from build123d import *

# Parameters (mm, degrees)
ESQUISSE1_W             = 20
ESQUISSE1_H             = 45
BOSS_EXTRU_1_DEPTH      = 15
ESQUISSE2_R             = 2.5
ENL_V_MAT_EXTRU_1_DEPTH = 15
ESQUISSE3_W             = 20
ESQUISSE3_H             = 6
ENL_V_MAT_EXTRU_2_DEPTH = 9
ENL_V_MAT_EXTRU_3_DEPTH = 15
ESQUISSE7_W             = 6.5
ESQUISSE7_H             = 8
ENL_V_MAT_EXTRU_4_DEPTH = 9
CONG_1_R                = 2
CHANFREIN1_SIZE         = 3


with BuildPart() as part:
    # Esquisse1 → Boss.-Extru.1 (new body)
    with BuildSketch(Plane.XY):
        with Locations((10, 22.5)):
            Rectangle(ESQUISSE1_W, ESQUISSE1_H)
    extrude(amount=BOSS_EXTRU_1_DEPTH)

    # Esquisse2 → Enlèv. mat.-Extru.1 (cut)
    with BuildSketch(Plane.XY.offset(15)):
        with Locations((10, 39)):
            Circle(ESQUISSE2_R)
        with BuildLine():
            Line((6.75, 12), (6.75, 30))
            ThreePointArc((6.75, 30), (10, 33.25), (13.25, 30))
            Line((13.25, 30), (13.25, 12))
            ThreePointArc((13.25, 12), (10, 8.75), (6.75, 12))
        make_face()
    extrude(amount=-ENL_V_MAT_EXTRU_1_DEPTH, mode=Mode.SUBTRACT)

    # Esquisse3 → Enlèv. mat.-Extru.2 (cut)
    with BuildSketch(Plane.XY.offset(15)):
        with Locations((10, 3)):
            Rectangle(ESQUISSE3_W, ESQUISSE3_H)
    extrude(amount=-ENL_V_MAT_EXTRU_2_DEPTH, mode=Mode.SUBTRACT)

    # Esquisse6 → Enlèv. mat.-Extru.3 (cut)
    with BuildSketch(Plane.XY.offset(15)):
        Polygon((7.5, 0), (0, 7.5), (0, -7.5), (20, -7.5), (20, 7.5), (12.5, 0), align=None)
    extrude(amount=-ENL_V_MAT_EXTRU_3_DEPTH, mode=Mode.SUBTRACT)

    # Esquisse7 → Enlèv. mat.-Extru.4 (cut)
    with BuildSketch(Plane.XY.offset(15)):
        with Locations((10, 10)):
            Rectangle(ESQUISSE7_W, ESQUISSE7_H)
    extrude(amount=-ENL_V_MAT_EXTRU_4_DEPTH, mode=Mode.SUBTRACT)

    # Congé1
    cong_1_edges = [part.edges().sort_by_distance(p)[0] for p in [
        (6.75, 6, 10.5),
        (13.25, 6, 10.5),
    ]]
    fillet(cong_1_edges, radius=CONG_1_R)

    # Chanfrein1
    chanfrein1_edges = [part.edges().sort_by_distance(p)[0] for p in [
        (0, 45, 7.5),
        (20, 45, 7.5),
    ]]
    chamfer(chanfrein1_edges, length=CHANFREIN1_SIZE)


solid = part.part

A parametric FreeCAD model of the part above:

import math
import FreeCAD as App
import Part
import Sketcher
from FreeCAD import Vector
Q = App.Units.Quantity


def edges_at(feature, points):
    """Names of the edges that pass closest to the given points."""
    edges = feature.Shape.Edges
    near = lambda p: min(range(len(edges)), key=lambda i: edges[i].distToShape(Part.Vertex(*p))[0])
    return sorted({f"Edge{near(p) + 1}" for p in points})


def add_polygon(sketch, points):
    """Adds a closed chain of lines whose ends are joined by coincident constraints."""
    first, n = sketch.GeometryCount, len(points)
    for a, b in zip(points, points[1:] + points[:1]):
        sketch.addGeometry(Part.LineSegment(App.Vector(*a, 0), App.Vector(*b, 0)), False)
    for i in range(n):
        sketch.addConstraint(Sketcher.Constraint("Coincident", first + i, 2, first + (i + 1) % n, 1))

doc = App.newDocument("Part")
body = doc.addObject("PartDesign::Body", "Body")

# Sketch on XY plane
sketch1 = body.newObject("Sketcher::SketchObject", "Sketch")
sketch1.AttachmentSupport = (doc.getObject("XY_Plane"), [""])
sketch1.MapMode = "FlatFace"
add_polygon(sketch1, [(0, 45), (0, 0), (20, 0), (20, 45)])  # lines 0-3
sketch1.addConstraint([
    Sketcher.Constraint("Vertical", 0),
    Sketcher.Constraint("Horizontal", 1),
    Sketcher.Constraint("Vertical", 2),
    Sketcher.Constraint("Horizontal", 3),
    Sketcher.Constraint("Coincident", 0, 2, -1, 1),
    Sketcher.Constraint("DistanceX", 1, 1, 1, 2, Q("20 mm")),
    Sketcher.Constraint("DistanceY", 0, 2, 0, 1, Q("45 mm")),
])
pad1 = body.newObject("PartDesign::Pad", "Pad")
pad1.Profile = sketch1
pad1.Length = 15

# Sketch on XY plane
sketch2 = body.newObject("Sketcher::SketchObject", "Sketch001")
sketch2.AttachmentSupport = (doc.getObject("XY_Plane"), [""])
sketch2.MapMode = "FlatFace"
sketch2.AttachmentOffset = App.Placement(Vector(0, 0, 15), App.Rotation())
sketch2.addGeometry([
    Part.Circle(Vector(10, 39, 0), Vector(0, 0, 1), 2.5),  # 0
    Part.LineSegment(Vector(6.8, 30, 0), Vector(6.8, 12, 0)),  # 1
    Part.ArcOfCircle(Part.Circle(Vector(10, 12, 0), Vector(0, 0, 1), 3.2), math.radians(180), math.radians(360)),  # 2
    Part.LineSegment(Vector(13.2, 12, 0), Vector(13.2, 30, 0)),  # 3
    Part.ArcOfCircle(Part.Circle(Vector(10, 30, 0), Vector(0, 0, 1), 3.2), math.radians(0), math.radians(180)),  # 4
], False)
sketch2.addConstraint([
    Sketcher.Constraint("Tangent", 1, 2, 2, 1),
    Sketcher.Constraint("Tangent", 2, 2, 3, 1),
    Sketcher.Constraint("Tangent", 3, 2, 4, 1),
    Sketcher.Constraint("Tangent", 4, 2, 1, 1),
    Sketcher.Constraint("Vertical", 1),
    Sketcher.Constraint("Vertical", 3),
    Sketcher.Constraint("Vertical", 0, 3, 2, 3),
    Sketcher.Constraint("Diameter", 0, Q("5 mm")),
    Sketcher.Constraint("DistanceY", 1, 2, 1, 1, Q("18 mm")),
    Sketcher.Constraint("Radius", 2, Q("3.25 mm")),
    Sketcher.Constraint("DistanceX", -1, 1, 0, 3, Q("10 mm")),
    Sketcher.Constraint("DistanceY", -1, 1, 0, 3, Q("39 mm")),
    Sketcher.Constraint("DistanceY", -1, 1, 2, 3, Q("12 mm")),
])
pocket1 = body.newObject("PartDesign::Pocket", "Pocket")
pocket1.Profile = sketch2
pocket1.Length = 15

# Sketch on XY plane
sketch3 = body.newObject("Sketcher::SketchObject", "Sketch002")
sketch3.AttachmentSupport = (doc.getObject("XY_Plane"), [""])
sketch3.MapMode = "FlatFace"
sketch3.AttachmentOffset = App.Placement(Vector(0, 0, 15), App.Rotation())
add_polygon(sketch3, [(0, 6), (0, 0), (20, 0), (20, 6)])  # lines 0-3
sketch3.addConstraint([
    Sketcher.Constraint("Vertical", 0),
    Sketcher.Constraint("Horizontal", 1),
    Sketcher.Constraint("Vertical", 2),
    Sketcher.Constraint("Horizontal", 3),
    Sketcher.Constraint("Coincident", 0, 2, -1, 1),
    Sketcher.Constraint("DistanceX", 1, 1, 1, 2, Q("20 mm")),
    Sketcher.Constraint("DistanceY", 0, 2, 0, 1, Q("6 mm")),
])
pocket2 = body.newObject("PartDesign::Pocket", "Pocket001")
pocket2.Profile = sketch3
pocket2.Length = 9

# Sketch on XY plane
sketch4 = body.newObject("Sketcher::SketchObject", "Sketch003")
sketch4.AttachmentSupport = (doc.getObject("XY_Plane"), [""])
sketch4.MapMode = "FlatFace"
sketch4.AttachmentOffset = App.Placement(Vector(0, 0, 15), App.Rotation())
add_polygon(sketch4, [(8, 0), (0, 8), (0, -8), (20, -8), (20, 8), (12, 0)])  # lines 0-5
sketch4.addConstraint([
    Sketcher.Constraint("Vertical", 1),
    Sketcher.Constraint("Horizontal", 2),
    Sketcher.Constraint("Vertical", 3),
    Sketcher.Constraint("Horizontal", 5),
    Sketcher.Constraint("Symmetric", 0, 2, 1, 2, -1, 1),
    Sketcher.Constraint("PointOnObject", 4, 2, -1),
    Sketcher.Constraint("Perpendicular", 0, 4),
    Sketcher.Constraint("Horizontal", 0, 2, 3, 2),
    Sketcher.Constraint("Equal", 0, 4),
    Sketcher.Constraint("DistanceX", 2, 1, 2, 2, Q("20 mm")),
    Sketcher.Constraint("DistanceX", 5, 2, 5, 1, Q("5 mm")),
])
pocket3 = body.newObject("PartDesign::Pocket", "Pocket002")
pocket3.Profile = sketch4
pocket3.Length = 15

# Sketch on XY plane
sketch5 = body.newObject("Sketcher::SketchObject", "Sketch004")
sketch5.AttachmentSupport = (doc.getObject("XY_Plane"), [""])
sketch5.MapMode = "FlatFace"
sketch5.AttachmentOffset = App.Placement(Vector(0, 0, 15), App.Rotation())
add_polygon(sketch5, [(7, 14), (7, 6), (13, 6), (13, 14)])  # lines 0-3
sketch5.addConstraint([
    Sketcher.Constraint("Vertical", 0),
    Sketcher.Constraint("Horizontal", 1),
    Sketcher.Constraint("Vertical", 2),
    Sketcher.Constraint("Horizontal", 3),
    Sketcher.Constraint("DistanceY", 0, 2, 0, 1, Q("8 mm")),
    Sketcher.Constraint("DistanceX", 1, 1, 1, 2, Q("6.5 mm")),
    Sketcher.Constraint("DistanceY", -1, 1, 0, 2, Q("6 mm")),
    Sketcher.Constraint("DistanceX", -1, 1, 0, 2, Q("6.75 mm")),
])
pocket4 = body.newObject("PartDesign::Pocket", "Pocket003")
pocket4.Profile = sketch5
pocket4.Length = 9
doc.recompute()

fillet = body.newObject("PartDesign::Fillet", "Fillet")
fillet.Base = (pocket4, edges_at(pocket4, [(6.75, 6, 10.5), (13.25, 6, 10.5)]))
fillet.Radius = 2
doc.recompute()

chamfer = body.newObject("PartDesign::Chamfer", "Chamfer")
chamfer.Base = (fillet, edges_at(fillet, [(0, 45, 7.5), (20, 45, 7.5)]))
chamfer.Size = 3

doc.recompute()
